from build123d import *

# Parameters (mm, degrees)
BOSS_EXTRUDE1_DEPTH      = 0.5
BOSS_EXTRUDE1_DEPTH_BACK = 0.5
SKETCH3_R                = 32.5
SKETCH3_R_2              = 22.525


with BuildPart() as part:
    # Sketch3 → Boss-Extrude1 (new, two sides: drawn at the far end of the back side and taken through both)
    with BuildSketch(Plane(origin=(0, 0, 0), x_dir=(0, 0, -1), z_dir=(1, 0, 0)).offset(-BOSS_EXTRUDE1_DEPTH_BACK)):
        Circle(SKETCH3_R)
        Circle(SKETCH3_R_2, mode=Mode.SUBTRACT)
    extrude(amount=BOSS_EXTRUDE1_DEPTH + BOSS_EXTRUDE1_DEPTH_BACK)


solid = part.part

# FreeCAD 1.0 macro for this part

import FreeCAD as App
import Part
import Sketcher
Q = App.Units.Quantity

doc = App.newDocument("Part")
body = doc.addObject("PartDesign::Body", "Body")

# Sketch on YZ plane
sketch1 = body.newObject("Sketcher::SketchObject", "Sketch")
sketch1.AttachmentSupport = (doc.getObject("YZ_Plane"), [""])
sketch1.MapMode = "FlatFace"
sketch1.addGeometry([
    Part.Circle(App.Vector(0, 0, 0), App.Vector(0, 0, 1), 32.5),
    Part.Circle(App.Vector(0, 0, 0), App.Vector(0, 0, 1), 22.525),
], False)
sketch1.addConstraint([
    Sketcher.Constraint("Coincident", 0, 3, -1, 1),
    Sketcher.Constraint("Coincident", 1, 3, -1, 1),
    Sketcher.Constraint("Diameter", 0, Q("65 mm")),
    Sketcher.Constraint("Diameter", 1, Q("45.05 mm")),
])
pad1 = body.newObject("PartDesign::Pad", "Pad")
pad1.Profile = sketch1
pad1.Type = "TwoLengths"
pad1.Length = 0.5
pad1.Length2 = 0.5

doc.recompute()
